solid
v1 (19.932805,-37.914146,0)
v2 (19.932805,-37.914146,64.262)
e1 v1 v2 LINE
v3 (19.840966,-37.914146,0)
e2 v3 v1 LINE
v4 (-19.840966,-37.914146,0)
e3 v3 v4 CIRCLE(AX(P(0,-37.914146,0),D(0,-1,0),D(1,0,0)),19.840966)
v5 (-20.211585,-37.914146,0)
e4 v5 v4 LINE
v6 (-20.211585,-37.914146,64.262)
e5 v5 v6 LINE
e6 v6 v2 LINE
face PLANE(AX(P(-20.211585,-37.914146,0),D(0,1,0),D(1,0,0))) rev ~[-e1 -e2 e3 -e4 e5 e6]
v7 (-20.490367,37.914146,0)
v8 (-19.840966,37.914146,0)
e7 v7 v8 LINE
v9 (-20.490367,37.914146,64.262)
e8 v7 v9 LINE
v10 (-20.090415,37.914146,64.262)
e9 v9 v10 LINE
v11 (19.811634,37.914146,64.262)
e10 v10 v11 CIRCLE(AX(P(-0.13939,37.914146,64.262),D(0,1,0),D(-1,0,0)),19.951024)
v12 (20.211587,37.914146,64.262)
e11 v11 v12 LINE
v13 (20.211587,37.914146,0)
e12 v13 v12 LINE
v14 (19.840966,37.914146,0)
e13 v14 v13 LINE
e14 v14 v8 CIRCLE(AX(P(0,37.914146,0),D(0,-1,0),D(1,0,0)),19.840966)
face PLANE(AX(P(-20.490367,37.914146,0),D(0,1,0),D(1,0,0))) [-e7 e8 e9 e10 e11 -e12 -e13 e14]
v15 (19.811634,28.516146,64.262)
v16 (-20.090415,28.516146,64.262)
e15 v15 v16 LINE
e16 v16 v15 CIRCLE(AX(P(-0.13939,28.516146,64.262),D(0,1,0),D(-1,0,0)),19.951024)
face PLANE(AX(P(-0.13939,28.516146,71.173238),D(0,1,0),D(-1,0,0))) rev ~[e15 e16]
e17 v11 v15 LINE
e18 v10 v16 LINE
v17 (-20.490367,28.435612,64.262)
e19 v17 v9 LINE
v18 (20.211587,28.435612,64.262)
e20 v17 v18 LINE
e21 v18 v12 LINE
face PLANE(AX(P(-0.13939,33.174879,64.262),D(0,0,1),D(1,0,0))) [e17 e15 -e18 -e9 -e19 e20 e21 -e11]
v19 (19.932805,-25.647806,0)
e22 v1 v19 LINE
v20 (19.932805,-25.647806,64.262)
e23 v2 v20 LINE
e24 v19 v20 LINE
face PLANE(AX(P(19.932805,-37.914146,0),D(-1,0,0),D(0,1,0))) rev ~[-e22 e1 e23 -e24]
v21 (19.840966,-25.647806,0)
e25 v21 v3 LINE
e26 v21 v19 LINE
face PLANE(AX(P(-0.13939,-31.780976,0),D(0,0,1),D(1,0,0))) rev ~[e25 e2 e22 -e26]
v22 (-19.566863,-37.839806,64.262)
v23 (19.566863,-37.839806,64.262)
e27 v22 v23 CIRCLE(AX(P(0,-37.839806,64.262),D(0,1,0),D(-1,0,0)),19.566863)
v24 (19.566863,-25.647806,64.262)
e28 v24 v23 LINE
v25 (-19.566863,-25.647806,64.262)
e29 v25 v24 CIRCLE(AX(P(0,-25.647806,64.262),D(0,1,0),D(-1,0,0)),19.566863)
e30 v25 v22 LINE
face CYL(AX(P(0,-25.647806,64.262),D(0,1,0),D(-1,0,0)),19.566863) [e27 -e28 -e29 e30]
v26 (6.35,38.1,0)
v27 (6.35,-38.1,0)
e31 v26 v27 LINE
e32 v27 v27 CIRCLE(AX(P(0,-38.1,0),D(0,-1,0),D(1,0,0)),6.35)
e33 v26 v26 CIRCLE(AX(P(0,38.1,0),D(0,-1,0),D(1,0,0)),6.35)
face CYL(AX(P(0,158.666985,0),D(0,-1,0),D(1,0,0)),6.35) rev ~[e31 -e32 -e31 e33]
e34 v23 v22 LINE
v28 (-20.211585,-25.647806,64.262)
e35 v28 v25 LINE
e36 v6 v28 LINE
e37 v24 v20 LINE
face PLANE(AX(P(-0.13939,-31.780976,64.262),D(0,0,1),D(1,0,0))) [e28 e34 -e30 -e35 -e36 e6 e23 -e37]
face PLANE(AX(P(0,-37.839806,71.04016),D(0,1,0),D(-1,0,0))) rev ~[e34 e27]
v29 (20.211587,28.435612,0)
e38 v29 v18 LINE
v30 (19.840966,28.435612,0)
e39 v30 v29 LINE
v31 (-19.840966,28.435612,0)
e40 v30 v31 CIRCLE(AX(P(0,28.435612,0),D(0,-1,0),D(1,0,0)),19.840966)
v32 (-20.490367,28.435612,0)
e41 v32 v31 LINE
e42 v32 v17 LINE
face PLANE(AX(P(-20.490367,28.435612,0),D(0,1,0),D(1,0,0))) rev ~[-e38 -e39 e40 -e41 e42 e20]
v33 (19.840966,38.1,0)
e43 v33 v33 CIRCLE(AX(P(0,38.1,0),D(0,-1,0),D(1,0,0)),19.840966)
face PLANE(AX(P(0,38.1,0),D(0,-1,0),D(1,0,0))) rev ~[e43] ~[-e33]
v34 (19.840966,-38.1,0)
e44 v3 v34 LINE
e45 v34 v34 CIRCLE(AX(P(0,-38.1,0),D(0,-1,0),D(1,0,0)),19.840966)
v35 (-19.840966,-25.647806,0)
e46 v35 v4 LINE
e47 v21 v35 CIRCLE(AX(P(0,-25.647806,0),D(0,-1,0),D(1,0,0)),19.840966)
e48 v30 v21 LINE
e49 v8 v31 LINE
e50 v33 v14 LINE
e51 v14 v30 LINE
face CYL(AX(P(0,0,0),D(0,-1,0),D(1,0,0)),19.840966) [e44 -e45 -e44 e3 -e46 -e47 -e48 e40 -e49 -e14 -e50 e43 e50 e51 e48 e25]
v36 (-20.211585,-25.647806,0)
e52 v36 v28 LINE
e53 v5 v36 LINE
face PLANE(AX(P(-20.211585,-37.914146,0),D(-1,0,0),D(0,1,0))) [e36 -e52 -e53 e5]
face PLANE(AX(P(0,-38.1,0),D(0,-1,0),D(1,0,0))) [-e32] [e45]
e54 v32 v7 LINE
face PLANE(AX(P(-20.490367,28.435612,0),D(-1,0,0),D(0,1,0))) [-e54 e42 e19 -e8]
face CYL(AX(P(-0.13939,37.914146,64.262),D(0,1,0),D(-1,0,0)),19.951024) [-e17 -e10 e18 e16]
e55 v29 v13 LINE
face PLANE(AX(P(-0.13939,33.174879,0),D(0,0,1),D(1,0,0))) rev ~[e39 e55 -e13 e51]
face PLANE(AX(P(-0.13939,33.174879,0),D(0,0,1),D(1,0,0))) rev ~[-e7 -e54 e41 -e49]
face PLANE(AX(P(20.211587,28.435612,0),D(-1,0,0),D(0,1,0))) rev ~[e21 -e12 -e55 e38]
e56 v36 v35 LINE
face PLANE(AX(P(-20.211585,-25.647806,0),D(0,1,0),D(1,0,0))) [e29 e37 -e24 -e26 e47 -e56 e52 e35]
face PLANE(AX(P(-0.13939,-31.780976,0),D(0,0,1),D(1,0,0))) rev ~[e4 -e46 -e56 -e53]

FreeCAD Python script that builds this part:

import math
import FreeCAD as App
import Part
import Sketcher
from FreeCAD import Vector
Q = App.Units.Quantity

doc = App.newDocument("Part")
body = doc.addObject("PartDesign::Body", "Body")

# Sketch on XZ plane
sketch1 = body.newObject("Sketcher::SketchObject", "Sketch")
sketch1.AttachmentSupport = (doc.getObject("XZ_Plane"), [""])
sketch1.MapMode = "FlatFace"
sketch1.addGeometry(Part.Circle(Vector(0, 0, 0), Vector(0, 0, 1), 19.840966), False)
sketch1.addConstraint(Sketcher.Constraint("Coincident", 0, 3, -1, 1))
sketch1.addConstraint(Sketcher.Constraint("Diameter", 0, 39.681932))
pad1 = body.newObject("PartDesign::Pad", "Pad")
pad1.Profile = sketch1
pad1.Length = Q("3 in")
pad1.Midplane = True

# Sketch on XY plane
sketch2 = body.newObject("Sketcher::SketchObject", "Sketch001")
sketch2.AttachmentSupport = (doc.getObject("XY_Plane"), [""])
sketch2.MapMode = "FlatFace"
sketch2.addGeometry(Part.LineSegment(Vector(-20.211585, -25.647806, 0), Vector(-20.211585, -37.914146, 0)), False)
sketch2.addGeometry(Part.LineSegment(Vector(-20.211585, -37.914146, 0), Vector(19.932805, -37.914146, 0)), False)
sketch2.addGeometry(Part.LineSegment(Vector(19.932805, -37.914146, 0), Vector(19.932805, -25.647806, 0)), False)
sketch2.addGeometry(Part.LineSegment(Vector(19.932805, -25.647806, 0), Vector(-20.211585, -25.647806, 0)), False)
sketch2.addConstraint(Sketcher.Constraint("Coincident", 0, 2, 1, 1))
sketch2.addConstraint(Sketcher.Constraint("Coincident", 1, 2, 2, 1))
sketch2.addConstraint(Sketcher.Constraint("Coincident", 2, 2, 3, 1))
sketch2.addConstraint(Sketcher.Constraint("Coincident", 3, 2, 0, 1))
sketch2.addConstraint(Sketcher.Constraint("Vertical", 0))
sketch2.addConstraint(Sketcher.Constraint("Horizontal", 1))
sketch2.addConstraint(Sketcher.Constraint("Vertical", 2))
sketch2.addConstraint(Sketcher.Constraint("Horizontal", 3))
sketch2.addConstraint(Sketcher.Constraint("DistanceX", 1, 1, 1, 2, 40.144389))
sketch2.addConstraint(Sketcher.Constraint("DistanceY", 0, 2, 0, 1, 12.26634))
sketch2.addConstraint(Sketcher.Constraint("DistanceX", 0, 2, -1, 1, 20.211585))
sketch2.addConstraint(Sketcher.Constraint("DistanceY", 0, 2, -1, 1, 37.914146))
pad2 = body.newObject("PartDesign::Pad", "Pad001")
pad2.Profile = sketch2
pad2.Length = Q("2.53 in")

# Sketch on XY plane
sketch3 = body.newObject("Sketcher::SketchObject", "Sketch002")
sketch3.AttachmentSupport = (doc.getObject("XY_Plane"), [""])
sketch3.MapMode = "FlatFace"
sketch3.addGeometry(Part.LineSegment(Vector(-20.490367, 37.914146, 0), Vector(-20.490367, 28.435612, 0)), False)
sketch3.addGeometry(Part.LineSegment(Vector(-20.490367, 28.435612, 0), Vector(20.211587, 28.435612, 0)), False)
sketch3.addGeometry(Part.LineSegment(Vector(20.211587, 28.435612, 0), Vector(20.211587, 37.914146, 0)), False)
sketch3.addGeometry(Part.LineSegment(Vector(20.211587, 37.914146, 0), Vector(-20.490367, 37.914146, 0)), False)
sketch3.addConstraint(Sketcher.Constraint("Coincident", 0, 2, 1, 1))
sketch3.addConstraint(Sketcher.Constraint("Coincident", 1, 2, 2, 1))
sketch3.addConstraint(Sketcher.Constraint("Coincident", 2, 2, 3, 1))
sketch3.addConstraint(Sketcher.Constraint("Coincident", 3, 2, 0, 1))
sketch3.addConstraint(Sketcher.Constraint("Vertical", 0))
sketch3.addConstraint(Sketcher.Constraint("Horizontal", 1))
sketch3.addConstraint(Sketcher.Constraint("Vertical", 2))
sketch3.addConstraint(Sketcher.Constraint("Horizontal", 3))
sketch3.addConstraint(Sketcher.Constraint("DistanceX", 1, 1, 1, 2, 40.701954))
sketch3.addConstraint(Sketcher.Constraint("DistanceY", 0, 2, 0, 1, 9.478534))
sketch3.addConstraint(Sketcher.Constraint("DistanceX", 0, 2, -1, 1, 20.490367))
sketch3.addConstraint(Sketcher.Constraint("DistanceY", -1, 1, 0, 2, 28.435612))
pad3 = body.newObject("PartDesign::Pad", "Pad002")
pad3.Profile = sketch3
pad3.Length = Q("2.53 in")

# Sketch on XZ plane
sketch4 = body.newObject("Sketcher::SketchObject", "Sketch003")
sketch4.AttachmentSupport = (doc.getObject("XZ_Plane"), [""])
sketch4.MapMode = "FlatFace"
sketch4.AttachmentOffset = App.Placement(Vector(0, 0, -1.5 * 25.4), App.Rotation())
sketch4.addGeometry(Part.Circle(Vector(0, 0, 0), Vector(0, 0, 1), 6.35), False)
sketch4.addConstraint(Sketcher.Constraint("Coincident", 0, 3, -1, 1))
sketch4.addConstraint(Sketcher.Constraint("Diameter", 0, Q("0.5 in")))
doc.recompute()
hole = body.newObject("PartDesign::Hole", "Hole")
hole.Profile = sketch4
hole.ThreadType = "None"
hole.Diameter = Q("0.5 in")
hole.DepthType = "ThroughAll"
hole.Reversed = True

# Sketch on XZ plane
sketch5 = body.newObject("Sketcher::SketchObject", "Sketch004")
sketch5.AttachmentSupport = (doc.getObject("XZ_Plane"), [""])
sketch5.MapMode = "FlatFace"
sketch5.AttachmentOffset = App.Placement(Vector(0, 0, 25.647806), App.Rotation())
sketch5.addGeometry(Part.LineSegment(Vector(19.566863, 64.262, 0), Vector(-19.566863, 64.262, 0)), False)
sketch5.addGeometry(Part.ArcOfCircle(Part.Circle(Vector(0, 64.262, 0), Vector(0, 0, 1), 19.566863), math.radians(0), math.radians(180)), False)
sketch5.addConstraint(Sketcher.Constraint("Coincident", 0, 1, 1, 1))
sketch5.addConstraint(Sketcher.Constraint("Coincident", 1, 2, 0, 2))
sketch5.addConstraint(Sketcher.Constraint("Horizontal", 0))
sketch5.addConstraint(Sketcher.Constraint("PointOnObject", 1, 3, -2))
sketch5.addConstraint(Sketcher.Constraint("Horizontal", 1, 3, 0, 1))
sketch5.addConstraint(Sketcher.Constraint("DistanceY", -1, 1, 1, 3, Q("2.53 in")))
sketch5.addConstraint(Sketcher.Constraint("Radius", 1, 19.566863))
pad4 = body.newObject("PartDesign::Pad", "Pad003")
pad4.Profile = sketch5
pad4.Length = Q("0.48 in")

# Sketch on XZ plane
sketch6 = body.newObject("Sketcher::SketchObject", "Sketch005")
sketch6.AttachmentSupport = (doc.getObject("XZ_Plane"), [""])
sketch6.MapMode = "FlatFace"
sketch6.AttachmentOffset = App.Placement(Vector(0, 0, -37.914146), App.Rotation())
sketch6.addGeometry(Part.LineSegment(Vector(19.811634, 64.262, 0), Vector(-20.090415, 64.262, 0)), False)
sketch6.addGeometry(Part.ArcOfCircle(Part.Circle(Vector(-0.13939, 64.262, 0), Vector(0, 0, 1), 19.951024), math.radians(0), math.radians(180)), False)
sketch6.addConstraint(Sketcher.Constraint("Coincident", 0, 1, 1, 1))
sketch6.addConstraint(Sketcher.Constraint("Coincident", 1, 2, 0, 2))
sketch6.addConstraint(Sketcher.Constraint("Horizontal", 0))
sketch6.addConstraint(Sketcher.Constraint("Horizontal", 1, 3, 0, 1))
sketch6.addConstraint(Sketcher.Constraint("DistanceY", -1, 1, 1, 3, Q("2.53 in")))
sketch6.addConstraint(Sketcher.Constraint("Radius", 1, 19.951024))
sketch6.addConstraint(Sketcher.Constraint("DistanceX", 1, 3, -1, 1, 0.13939))
pad5 = body.newObject("PartDesign::Pad", "Pad004")
pad5.Profile = sketch6
pad5.Length = Q("0.37 in")

doc.recompute()
